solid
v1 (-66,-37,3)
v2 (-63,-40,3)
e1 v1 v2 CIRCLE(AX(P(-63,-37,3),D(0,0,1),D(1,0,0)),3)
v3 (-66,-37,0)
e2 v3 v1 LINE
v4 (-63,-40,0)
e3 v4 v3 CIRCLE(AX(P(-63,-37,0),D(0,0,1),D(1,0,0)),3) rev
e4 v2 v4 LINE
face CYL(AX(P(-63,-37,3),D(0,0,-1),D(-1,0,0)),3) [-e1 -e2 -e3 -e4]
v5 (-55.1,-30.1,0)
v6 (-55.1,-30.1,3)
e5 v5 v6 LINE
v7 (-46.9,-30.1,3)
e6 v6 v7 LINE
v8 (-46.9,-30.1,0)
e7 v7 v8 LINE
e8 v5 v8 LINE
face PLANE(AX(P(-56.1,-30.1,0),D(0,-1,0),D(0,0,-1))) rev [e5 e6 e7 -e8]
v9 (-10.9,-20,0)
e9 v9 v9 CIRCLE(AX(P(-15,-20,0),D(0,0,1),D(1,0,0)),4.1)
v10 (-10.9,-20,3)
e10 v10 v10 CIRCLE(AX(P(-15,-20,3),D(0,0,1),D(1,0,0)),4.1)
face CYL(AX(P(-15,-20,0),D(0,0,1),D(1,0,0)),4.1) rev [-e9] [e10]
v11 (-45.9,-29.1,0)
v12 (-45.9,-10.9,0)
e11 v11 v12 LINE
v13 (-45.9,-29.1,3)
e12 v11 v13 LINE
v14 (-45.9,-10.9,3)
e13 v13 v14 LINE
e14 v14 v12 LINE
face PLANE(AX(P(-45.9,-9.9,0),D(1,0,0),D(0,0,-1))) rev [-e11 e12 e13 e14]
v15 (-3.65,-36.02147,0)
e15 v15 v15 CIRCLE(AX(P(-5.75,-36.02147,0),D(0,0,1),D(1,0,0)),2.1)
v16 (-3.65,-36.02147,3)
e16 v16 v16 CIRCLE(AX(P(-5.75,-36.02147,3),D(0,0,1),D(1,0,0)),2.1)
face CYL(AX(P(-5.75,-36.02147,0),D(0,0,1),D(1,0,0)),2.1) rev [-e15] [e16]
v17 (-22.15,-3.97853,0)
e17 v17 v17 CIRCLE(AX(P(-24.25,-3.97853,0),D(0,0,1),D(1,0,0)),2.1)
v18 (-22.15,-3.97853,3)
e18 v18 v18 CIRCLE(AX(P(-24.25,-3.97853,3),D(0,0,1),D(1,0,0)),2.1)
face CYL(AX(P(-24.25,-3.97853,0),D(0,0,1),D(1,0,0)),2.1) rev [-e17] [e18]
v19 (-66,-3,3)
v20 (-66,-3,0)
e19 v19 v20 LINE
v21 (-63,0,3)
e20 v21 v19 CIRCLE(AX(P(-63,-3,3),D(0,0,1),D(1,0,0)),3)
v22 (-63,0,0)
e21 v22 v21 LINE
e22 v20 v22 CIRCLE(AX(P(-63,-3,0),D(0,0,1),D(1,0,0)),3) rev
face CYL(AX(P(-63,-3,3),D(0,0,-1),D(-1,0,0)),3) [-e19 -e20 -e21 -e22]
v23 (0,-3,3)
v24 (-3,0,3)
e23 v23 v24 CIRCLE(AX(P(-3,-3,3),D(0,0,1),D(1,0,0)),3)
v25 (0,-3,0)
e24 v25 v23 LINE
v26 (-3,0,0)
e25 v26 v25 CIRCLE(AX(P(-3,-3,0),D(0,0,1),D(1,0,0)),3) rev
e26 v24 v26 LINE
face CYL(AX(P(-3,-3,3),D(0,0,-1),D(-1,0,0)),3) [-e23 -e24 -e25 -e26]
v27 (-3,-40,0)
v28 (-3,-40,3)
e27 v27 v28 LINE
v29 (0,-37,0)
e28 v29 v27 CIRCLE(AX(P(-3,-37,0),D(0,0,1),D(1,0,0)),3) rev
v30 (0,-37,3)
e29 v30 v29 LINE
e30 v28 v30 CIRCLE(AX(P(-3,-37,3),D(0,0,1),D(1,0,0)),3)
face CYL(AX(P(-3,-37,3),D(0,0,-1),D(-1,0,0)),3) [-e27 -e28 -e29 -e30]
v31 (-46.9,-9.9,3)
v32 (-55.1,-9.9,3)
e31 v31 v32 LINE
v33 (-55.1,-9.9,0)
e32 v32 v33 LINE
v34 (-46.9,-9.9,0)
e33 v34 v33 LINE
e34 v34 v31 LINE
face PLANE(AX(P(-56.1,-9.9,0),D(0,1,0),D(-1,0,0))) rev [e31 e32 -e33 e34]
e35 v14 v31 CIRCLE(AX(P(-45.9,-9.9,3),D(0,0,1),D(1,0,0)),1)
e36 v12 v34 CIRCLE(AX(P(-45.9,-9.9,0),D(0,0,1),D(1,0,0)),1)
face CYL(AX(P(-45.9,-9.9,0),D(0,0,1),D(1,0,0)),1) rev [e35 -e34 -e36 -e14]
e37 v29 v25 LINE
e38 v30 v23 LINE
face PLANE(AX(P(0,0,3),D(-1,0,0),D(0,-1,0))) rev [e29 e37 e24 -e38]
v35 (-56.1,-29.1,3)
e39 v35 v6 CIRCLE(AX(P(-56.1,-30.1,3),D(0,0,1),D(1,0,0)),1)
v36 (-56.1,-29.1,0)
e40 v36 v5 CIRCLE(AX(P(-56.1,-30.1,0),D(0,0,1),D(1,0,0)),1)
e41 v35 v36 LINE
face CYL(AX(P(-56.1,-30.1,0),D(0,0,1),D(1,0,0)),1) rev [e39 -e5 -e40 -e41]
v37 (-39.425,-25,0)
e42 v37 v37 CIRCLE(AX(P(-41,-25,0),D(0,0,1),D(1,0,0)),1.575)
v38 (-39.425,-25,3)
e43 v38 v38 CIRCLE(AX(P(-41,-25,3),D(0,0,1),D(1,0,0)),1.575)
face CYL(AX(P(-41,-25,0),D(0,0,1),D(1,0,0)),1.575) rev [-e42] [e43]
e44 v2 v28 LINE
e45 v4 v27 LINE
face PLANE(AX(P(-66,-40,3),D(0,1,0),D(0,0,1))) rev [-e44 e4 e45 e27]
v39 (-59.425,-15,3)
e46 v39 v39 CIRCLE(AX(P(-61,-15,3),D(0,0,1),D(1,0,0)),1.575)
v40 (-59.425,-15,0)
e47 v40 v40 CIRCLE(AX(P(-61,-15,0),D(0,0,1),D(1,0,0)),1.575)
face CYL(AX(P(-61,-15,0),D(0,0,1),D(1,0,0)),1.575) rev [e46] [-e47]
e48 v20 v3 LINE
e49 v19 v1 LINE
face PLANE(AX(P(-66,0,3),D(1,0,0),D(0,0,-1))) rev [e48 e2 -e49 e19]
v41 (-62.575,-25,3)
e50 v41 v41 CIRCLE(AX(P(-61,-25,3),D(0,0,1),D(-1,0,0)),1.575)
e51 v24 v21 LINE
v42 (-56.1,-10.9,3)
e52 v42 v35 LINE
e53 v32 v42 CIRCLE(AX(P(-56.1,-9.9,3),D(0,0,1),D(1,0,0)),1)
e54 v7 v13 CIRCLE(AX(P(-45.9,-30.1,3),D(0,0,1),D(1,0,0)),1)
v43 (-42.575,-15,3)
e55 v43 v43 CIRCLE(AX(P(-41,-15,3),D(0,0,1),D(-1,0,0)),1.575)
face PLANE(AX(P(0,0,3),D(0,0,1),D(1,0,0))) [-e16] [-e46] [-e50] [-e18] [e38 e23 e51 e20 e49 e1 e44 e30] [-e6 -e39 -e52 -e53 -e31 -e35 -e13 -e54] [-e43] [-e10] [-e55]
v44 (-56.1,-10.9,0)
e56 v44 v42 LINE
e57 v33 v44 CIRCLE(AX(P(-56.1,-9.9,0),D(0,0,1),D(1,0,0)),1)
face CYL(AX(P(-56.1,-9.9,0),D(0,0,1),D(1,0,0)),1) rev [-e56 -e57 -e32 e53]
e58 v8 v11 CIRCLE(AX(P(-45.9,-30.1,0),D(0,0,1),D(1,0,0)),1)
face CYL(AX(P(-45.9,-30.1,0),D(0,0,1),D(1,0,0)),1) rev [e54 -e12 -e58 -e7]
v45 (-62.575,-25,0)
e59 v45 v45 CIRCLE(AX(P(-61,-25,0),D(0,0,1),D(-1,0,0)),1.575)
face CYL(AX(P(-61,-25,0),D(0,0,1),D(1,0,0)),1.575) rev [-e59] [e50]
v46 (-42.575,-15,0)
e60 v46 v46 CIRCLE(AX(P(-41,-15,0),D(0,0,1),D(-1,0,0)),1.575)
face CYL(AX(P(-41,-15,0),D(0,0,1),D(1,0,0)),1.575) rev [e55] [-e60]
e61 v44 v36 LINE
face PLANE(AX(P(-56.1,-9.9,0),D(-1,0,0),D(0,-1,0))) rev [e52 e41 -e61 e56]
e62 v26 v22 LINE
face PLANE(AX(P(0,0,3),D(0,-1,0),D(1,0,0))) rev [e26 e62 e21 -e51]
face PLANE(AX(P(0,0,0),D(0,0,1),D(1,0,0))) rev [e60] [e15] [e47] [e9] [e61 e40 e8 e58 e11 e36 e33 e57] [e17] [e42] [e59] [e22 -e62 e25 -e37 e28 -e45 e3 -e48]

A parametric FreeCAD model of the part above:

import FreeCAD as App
import Part
import Sketcher

V = App.Vector
Q = App.Units.Quantity


def edges_at(feature, points):
    """Names of the edges that pass closest to the given points."""
    edges = feature.Shape.Edges
    near = lambda p: min(range(len(edges)), key=lambda i: edges[i].distToShape(Part.Vertex(*p))[0])
    return sorted({f"Edge{near(p) + 1}" for p in points})


def add_polygon(sketch, points):
    """Adds a closed chain of lines whose ends are joined by coincident constraints."""
    first, n = sketch.GeometryCount, len(points)
    for a, b in zip(points, points[1:] + points[:1]):
        sketch.addGeometry(Part.LineSegment(App.Vector(*a, 0), App.Vector(*b, 0)), False)
    for i in range(n):
        sketch.addConstraint(Sketcher.Constraint("Coincident", first + i, 2, first + (i + 1) % n, 1))

doc = App.newDocument("Part")
body = doc.addObject("PartDesign::Body", "Body")

sketch1 = body.newObject("Sketcher::SketchObject", "Sketch")
sketch1.AttachmentSupport = (doc.getObject("XY_Plane"), [""])
sketch1.MapMode = "FlatFace"
add_polygon(sketch1, [(-66, 0), (-66, -40), (0, -40), (0, 0)])
sketch1.addConstraint([
    Sketcher.Constraint("Vertical", 0),
    Sketcher.Constraint("Horizontal", 1),
    Sketcher.Constraint("Vertical", 2),
    Sketcher.Constraint("Horizontal", 3),
    Sketcher.Constraint("Coincident", 2, 2, -1, 1),
    Sketcher.Constraint("DistanceX", 1, 1, 1, 2, Q("66 mm")),
    Sketcher.Constraint("DistanceY", 0, 2, 0, 1, Q("40 mm")),
])
pad1 = body.newObject("PartDesign::Pad", "Pad")
pad1.Profile = sketch1
pad1.Length = 3

sketch2 = body.newObject("Sketcher::SketchObject", "Sketch001")
sketch2.AttachmentSupport = (doc.getObject("XY_Plane"), [""])
sketch2.MapMode = "FlatFace"
sketch2.AttachmentOffset = App.Placement(V(0, 0, 3), App.Rotation())
sketch2.addGeometry(Part.Circle(V(-61, -15, 0), V(0, 0, 1), 1.6), False)
sketch2.addGeometry(Part.Circle(V(-61, -25, 0), V(0, 0, 1), 1.6), False)
sketch2.addGeometry(Part.Circle(V(-41, -25, 0), V(0, 0, 1), 1.6), False)
sketch2.addGeometry(Part.Circle(V(-41, -15, 0), V(0, 0, 1), 1.6), False)
sketch2.addGeometry(Part.Circle(V(-15, -20, 0), V(0, 0, 1), 4.1), False)
sketch2.addGeometry(Part.Circle(V(-24.2, -4, 0), V(0, 0, 1), 2.1), False)
sketch2.addGeometry(Part.Circle(V(-5.8, -36, 0), V(0, 0, 1), 2.1), False)
add_polygon(sketch2, [(-56.1, -9.9), (-56.1, -30.1), (-45.9, -30.1), (-45.9, -9.9)])
sketch2.addConstraint([
    Sketcher.Constraint("Vertical", 7),
    Sketcher.Constraint("Horizontal", 8),
    Sketcher.Constraint("Vertical", 9),
    Sketcher.Constraint("Horizontal", 10),
    Sketcher.Constraint("Equal", 0, 1),
    Sketcher.Constraint("Equal", 1, 2),
    Sketcher.Constraint("Equal", 2, 3),
    Sketcher.Constraint("Equal", 5, 6),
    Sketcher.Constraint("Horizontal", 1, 3, 2, 3),
    Sketcher.Constraint("Horizontal", 0, 3, 3, 3),
    Sketcher.Constraint("Vertical", 0, 3, 1, 3),
    Sketcher.Constraint("Vertical", 2, 3, 3, 3),
    Sketcher.Constraint("Diameter", 4, Q("8.2 mm")),
    Sketcher.Constraint("Diameter", 5, Q("4.2 mm")),
    Sketcher.Constraint("Diameter", 0, Q("3.15 mm")),
    Sketcher.Constraint("DistanceX", 8, 1, 8, 2, Q("10.2 mm")),
    Sketcher.Constraint("DistanceY", 7, 2, 7, 1, Q("20.2 mm")),
    Sketcher.Constraint("DistanceX", 0, 3, -1, 1, Q("61 mm")),
    Sketcher.Constraint("DistanceY", 0, 3, -1, 1, Q("15 mm")),
    Sketcher.Constraint("DistanceY", 1, 3, -1, 1, Q("25 mm")),
    Sketcher.Constraint("DistanceX", 2, 3, -1, 1, Q("41 mm")),
    Sketcher.Constraint("DistanceX", 4, 3, -1, 1, Q("15 mm")),
    Sketcher.Constraint("DistanceY", 4, 3, -1, 1, Q("20 mm")),
    Sketcher.Constraint("DistanceX", 7, 2, -1, 1, Q("56.1 mm")),
    Sketcher.Constraint("DistanceY", 7, 2, -1, 1, Q("30.1 mm")),
    Sketcher.Constraint("DistanceX", 5, 3, 6, 3, Q("18.5 mm")),
    Sketcher.Constraint("DistanceX", 5, 3, -1, 1, Q("24.25 mm")),
    Sketcher.Constraint("DistanceY", 5, 3, -1, 1, Q("3.97853 mm")),
    Sketcher.Constraint("DistanceY", 6, 3, -1, 1, Q("36.02147 mm")),
])
pocket1 = body.newObject("PartDesign::Pocket", "Pocket")
pocket1.Profile = sketch2
pocket1.Type = "ThroughAll"

sketch3 = body.newObject("Sketcher::SketchObject", "Sketch002")
sketch3.AttachmentSupport = (doc.getObject("XY_Plane"), [""])
sketch3.MapMode = "FlatFace"
sketch3.AttachmentOffset = App.Placement(V(0, 0, 3), App.Rotation())
sketch3.addGeometry([
    Part.Circle(V(-45.9, -9.9, 0), V(0, 0, 1), 1),
    Part.Circle(V(-45.9, -30.1, 0), V(0, 0, 1), 1),
    Part.Circle(V(-56.1, -30.1, 0), V(0, 0, 1), 1),
    Part.Circle(V(-56.1, -9.9, 0), V(0, 0, 1), 1),
], False)
sketch3.addConstraint([
    Sketcher.Constraint("Equal", 0, 1),
    Sketcher.Constraint("Equal", 1, 2),
    Sketcher.Constraint("Equal", 2, 3),
    Sketcher.Constraint("Horizontal", 1, 3, 2, 3),
    Sketcher.Constraint("Horizontal", 0, 3, 3, 3),
    Sketcher.Constraint("Vertical", 0, 3, 1, 3),
    Sketcher.Constraint("Vertical", 2, 3, 3, 3),
    Sketcher.Constraint("Diameter", 0, Q("2 mm")),
    Sketcher.Constraint("DistanceX", 0, 3, -1, 1, Q("45.9 mm")),
    Sketcher.Constraint("DistanceY", 0, 3, -1, 1, Q("9.9 mm")),
    Sketcher.Constraint("DistanceY", 1, 3, -1, 1, Q("30.1 mm")),
    Sketcher.Constraint("DistanceX", 2, 3, -1, 1, Q("56.1 mm")),
])
pocket2 = body.newObject("PartDesign::Pocket", "Pocket001")
pocket2.Profile = sketch3
pocket2.Type = "ThroughAll"
doc.recompute()

fillet = body.newObject("PartDesign::Fillet", "Fillet")
fillet.Base = (pocket2, edges_at(pocket2, [
    (0, -40, 1.5),
    (-66, -40, 1.5),
    (-66, 0, 1.5),
    (0, 0, 1.5),
]))
fillet.Radius = 3

doc.recompute()
